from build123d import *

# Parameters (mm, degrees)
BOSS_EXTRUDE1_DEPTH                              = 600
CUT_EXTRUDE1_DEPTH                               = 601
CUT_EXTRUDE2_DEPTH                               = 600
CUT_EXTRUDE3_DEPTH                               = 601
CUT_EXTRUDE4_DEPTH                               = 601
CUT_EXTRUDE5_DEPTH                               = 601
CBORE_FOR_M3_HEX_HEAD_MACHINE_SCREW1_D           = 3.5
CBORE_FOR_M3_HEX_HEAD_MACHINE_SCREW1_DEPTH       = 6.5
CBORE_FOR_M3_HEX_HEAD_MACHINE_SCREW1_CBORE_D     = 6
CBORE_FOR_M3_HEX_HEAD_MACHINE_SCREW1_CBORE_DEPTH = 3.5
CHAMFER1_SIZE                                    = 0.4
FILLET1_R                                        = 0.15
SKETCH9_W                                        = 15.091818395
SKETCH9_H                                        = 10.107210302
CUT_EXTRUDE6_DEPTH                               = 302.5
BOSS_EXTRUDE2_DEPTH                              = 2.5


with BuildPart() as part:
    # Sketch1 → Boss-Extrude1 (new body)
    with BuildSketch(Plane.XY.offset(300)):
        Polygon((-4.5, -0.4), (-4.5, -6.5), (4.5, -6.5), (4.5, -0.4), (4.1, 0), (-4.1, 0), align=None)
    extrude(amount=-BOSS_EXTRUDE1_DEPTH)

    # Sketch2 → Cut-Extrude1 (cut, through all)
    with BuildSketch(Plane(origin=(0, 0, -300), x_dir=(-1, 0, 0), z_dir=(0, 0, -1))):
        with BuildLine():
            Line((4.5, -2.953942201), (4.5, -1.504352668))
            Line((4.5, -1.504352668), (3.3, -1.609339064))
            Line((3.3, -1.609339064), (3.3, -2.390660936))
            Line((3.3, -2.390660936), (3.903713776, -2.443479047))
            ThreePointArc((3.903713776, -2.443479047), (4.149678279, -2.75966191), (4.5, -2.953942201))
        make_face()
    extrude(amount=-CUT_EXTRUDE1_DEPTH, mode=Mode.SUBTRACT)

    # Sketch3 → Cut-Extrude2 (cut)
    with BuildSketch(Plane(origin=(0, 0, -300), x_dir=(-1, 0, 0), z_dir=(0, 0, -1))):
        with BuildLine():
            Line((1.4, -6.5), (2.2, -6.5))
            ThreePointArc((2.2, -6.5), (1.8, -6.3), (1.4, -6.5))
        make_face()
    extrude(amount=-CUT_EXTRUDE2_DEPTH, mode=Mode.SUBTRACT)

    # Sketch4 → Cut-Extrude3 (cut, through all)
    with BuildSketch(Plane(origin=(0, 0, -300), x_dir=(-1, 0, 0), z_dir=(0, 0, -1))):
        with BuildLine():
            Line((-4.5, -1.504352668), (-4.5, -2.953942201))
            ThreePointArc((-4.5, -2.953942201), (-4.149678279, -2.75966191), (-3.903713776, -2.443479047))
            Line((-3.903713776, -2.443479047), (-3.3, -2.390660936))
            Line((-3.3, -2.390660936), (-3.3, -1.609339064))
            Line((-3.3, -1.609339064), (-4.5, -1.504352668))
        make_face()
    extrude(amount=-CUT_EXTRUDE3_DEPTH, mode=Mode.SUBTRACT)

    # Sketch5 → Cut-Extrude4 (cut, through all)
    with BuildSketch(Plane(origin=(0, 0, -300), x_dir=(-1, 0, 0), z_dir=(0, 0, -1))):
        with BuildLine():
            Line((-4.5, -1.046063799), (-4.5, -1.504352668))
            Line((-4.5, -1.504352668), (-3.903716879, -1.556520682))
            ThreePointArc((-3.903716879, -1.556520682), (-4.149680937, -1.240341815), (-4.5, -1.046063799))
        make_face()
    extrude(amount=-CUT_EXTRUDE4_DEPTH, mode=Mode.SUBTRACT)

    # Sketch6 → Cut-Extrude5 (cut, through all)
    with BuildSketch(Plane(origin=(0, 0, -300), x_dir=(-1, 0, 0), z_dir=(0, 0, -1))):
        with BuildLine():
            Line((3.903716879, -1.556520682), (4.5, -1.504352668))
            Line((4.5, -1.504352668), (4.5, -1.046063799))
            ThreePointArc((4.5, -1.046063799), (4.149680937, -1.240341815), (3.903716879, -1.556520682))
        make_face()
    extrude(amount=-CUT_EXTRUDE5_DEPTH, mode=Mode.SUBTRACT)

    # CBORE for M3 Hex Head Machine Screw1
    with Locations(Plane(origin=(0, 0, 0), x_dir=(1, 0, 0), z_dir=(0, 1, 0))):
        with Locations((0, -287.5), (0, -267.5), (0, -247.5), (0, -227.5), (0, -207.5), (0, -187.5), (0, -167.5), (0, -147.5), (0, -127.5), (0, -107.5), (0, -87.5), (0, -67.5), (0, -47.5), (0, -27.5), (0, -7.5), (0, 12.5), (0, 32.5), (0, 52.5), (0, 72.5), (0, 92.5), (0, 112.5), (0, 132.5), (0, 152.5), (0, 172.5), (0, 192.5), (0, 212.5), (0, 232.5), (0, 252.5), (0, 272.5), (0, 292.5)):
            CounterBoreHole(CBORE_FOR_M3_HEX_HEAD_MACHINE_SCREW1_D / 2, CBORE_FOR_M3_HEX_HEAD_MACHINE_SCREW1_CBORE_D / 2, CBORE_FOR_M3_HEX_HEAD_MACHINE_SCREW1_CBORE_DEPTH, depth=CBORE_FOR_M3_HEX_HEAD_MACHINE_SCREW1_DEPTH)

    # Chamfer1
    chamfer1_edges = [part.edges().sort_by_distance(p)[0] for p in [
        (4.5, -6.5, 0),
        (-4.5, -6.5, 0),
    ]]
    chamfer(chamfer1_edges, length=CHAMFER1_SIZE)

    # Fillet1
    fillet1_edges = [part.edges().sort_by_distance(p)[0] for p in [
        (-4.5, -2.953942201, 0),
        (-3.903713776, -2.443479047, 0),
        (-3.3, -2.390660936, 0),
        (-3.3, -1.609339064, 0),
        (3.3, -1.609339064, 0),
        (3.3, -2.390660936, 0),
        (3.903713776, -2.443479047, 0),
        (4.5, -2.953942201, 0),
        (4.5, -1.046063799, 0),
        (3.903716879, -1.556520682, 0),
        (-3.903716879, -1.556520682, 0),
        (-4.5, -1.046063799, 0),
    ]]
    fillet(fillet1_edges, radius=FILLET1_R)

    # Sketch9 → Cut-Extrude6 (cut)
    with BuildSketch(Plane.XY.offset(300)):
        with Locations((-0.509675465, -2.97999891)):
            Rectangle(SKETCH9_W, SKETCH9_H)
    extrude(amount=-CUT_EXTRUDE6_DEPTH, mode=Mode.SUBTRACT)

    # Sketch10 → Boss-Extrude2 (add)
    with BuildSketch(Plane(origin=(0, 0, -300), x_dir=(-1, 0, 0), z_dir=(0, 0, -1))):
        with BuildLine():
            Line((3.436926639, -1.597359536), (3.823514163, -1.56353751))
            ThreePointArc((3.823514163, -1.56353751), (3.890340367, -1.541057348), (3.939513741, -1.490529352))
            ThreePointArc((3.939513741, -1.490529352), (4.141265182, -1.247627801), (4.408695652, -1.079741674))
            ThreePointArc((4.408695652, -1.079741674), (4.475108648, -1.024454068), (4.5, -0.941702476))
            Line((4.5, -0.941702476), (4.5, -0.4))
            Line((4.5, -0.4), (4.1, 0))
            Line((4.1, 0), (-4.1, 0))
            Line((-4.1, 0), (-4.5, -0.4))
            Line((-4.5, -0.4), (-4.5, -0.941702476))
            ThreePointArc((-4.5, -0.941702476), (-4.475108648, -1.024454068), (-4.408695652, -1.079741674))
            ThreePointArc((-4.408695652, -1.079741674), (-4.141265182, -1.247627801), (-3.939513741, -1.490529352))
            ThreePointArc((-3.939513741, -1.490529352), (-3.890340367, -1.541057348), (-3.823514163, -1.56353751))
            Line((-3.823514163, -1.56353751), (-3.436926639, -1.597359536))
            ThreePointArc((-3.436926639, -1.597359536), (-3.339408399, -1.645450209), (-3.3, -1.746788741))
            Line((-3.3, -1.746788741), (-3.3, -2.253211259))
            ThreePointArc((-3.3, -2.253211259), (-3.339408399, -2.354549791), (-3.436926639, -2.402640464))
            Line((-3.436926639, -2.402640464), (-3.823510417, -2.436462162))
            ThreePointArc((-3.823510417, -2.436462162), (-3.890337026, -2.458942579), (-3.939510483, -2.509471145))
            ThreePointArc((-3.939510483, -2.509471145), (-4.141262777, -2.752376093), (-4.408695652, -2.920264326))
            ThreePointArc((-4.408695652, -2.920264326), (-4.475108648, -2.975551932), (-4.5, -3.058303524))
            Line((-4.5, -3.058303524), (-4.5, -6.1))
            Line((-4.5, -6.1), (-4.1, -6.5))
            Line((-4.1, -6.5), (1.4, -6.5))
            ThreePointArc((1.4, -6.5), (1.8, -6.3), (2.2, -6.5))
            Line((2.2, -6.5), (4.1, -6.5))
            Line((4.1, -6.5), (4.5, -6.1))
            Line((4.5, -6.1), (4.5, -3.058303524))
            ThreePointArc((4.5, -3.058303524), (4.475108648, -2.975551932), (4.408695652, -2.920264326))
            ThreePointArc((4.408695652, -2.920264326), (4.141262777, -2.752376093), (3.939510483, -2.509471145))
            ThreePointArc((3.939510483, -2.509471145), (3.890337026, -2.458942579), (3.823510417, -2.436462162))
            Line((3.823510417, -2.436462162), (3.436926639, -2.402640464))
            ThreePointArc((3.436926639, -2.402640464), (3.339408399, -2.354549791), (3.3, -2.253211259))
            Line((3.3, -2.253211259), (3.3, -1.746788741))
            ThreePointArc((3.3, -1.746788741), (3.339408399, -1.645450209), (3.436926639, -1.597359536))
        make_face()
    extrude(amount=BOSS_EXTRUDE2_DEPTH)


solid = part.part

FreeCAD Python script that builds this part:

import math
import FreeCAD as App
import Part
import Sketcher
from FreeCAD import Vector
Q = App.Units.Quantity


def edges_at(feature, points):
    """Names of the edges that pass closest to the given points."""
    edges = feature.Shape.Edges
    near = lambda p: min(range(len(edges)), key=lambda i: edges[i].distToShape(Part.Vertex(*p))[0])
    return sorted({f"Edge{near(p) + 1}" for p in points})

doc = App.newDocument("Part")
body = doc.addObject("PartDesign::Body", "Body")

# Sketch on XY plane
sketch1 = body.newObject("Sketcher::SketchObject", "Sketch")
sketch1.AttachmentSupport = (doc.getObject("XY_Plane"), [""])
sketch1.MapMode = "FlatFace"
sketch1.AttachmentOffset = App.Placement(Vector(0, 0, 300), App.Rotation())
sketch1.addGeometry([
    Part.LineSegment(Vector(-4.5, -0.4, 0), Vector(-4.5, -6.5, 0)),  # 0
    Part.LineSegment(Vector(-4.5, -6.5, 0), Vector(4.5, -6.5, 0)),  # 1
    Part.LineSegment(Vector(4.5, -6.5, 0), Vector(4.5, -0.4, 0)),  # 2
    Part.LineSegment(Vector(4.5, -0.4, 0), Vector(4.1, 0, 0)),  # 3
    Part.LineSegment(Vector(4.1, 0, 0), Vector(-4.1, 0, 0)),  # 4
    Part.LineSegment(Vector(-4.1, 0, 0), Vector(-4.5, -0.4, 0)),  # 5
], False)
sketch1.addConstraint([
    Sketcher.Constraint("Coincident", 0, 2, 1, 1),
    Sketcher.Constraint("Coincident", 1, 2, 2, 1),
    Sketcher.Constraint("Coincident", 2, 2, 3, 1),
    Sketcher.Constraint("Coincident", 3, 2, 4, 1),
    Sketcher.Constraint("Coincident", 4, 2, 5, 1),
    Sketcher.Constraint("Coincident", 5, 2, 0, 1),
    Sketcher.Constraint("Vertical", 0),
    Sketcher.Constraint("Horizontal", 1),
    Sketcher.Constraint("Vertical", 2),
    Sketcher.Constraint("Horizontal", 4),
    Sketcher.Constraint("Symmetric", 3, 2, 4, 2, -1, 1),
    Sketcher.Constraint("Symmetric", 2, 2, 5, 2, -2),
    Sketcher.Constraint("Perpendicular", 3, 5),
    Sketcher.Constraint("DistanceX", 1, 1, 1, 2, Q("9 mm")),
    Sketcher.Constraint("DistanceX", 4, 2, 4, 1, Q("8.2 mm")),
    Sketcher.Constraint("DistanceY", 0, 2, 0, 1, Q("6.1 mm")),
])
pad1 = body.newObject("PartDesign::Pad", "Pad")
pad1.Profile = sketch1
pad1.Length = 600
pad1.Reversed = True

# Sketch on XY plane
sketch2 = body.newObject("Sketcher::SketchObject", "Sketch001")
sketch2.AttachmentSupport = (doc.getObject("XY_Plane"), [""])
sketch2.MapMode = "FlatFace"
sketch2.AttachmentOffset = App.Placement(Vector(0, 0, -300), App.Rotation())
sketch2.addGeometry([
    Part.LineSegment(Vector(-4.5, -3, 0), Vector(-4.5, -1.5, 0)),  # 0
    Part.LineSegment(Vector(-4.5, -1.5, 0), Vector(-3.3, -1.6, 0)),  # 1
    Part.LineSegment(Vector(-3.3, -1.6, 0), Vector(-3.3, -2.4, 0)),  # 2
    Part.LineSegment(Vector(-3.3, -2.4, 0), Vector(-3.9, -2.4, 0)),  # 3
    Part.ArcOfCircle(Part.Circle(Vector(-4.8, -2, 0), Vector(0, 0, 1), 1), math.radians(-73), math.radians(-26)),  # 4
], False)
sketch2.addConstraint([
    Sketcher.Constraint("Coincident", 0, 2, 1, 1),
    Sketcher.Constraint("Coincident", 1, 2, 2, 1),
    Sketcher.Constraint("Coincident", 2, 2, 3, 1),
    Sketcher.Constraint("Coincident", 3, 2, 4, 2),
    Sketcher.Constraint("Coincident", 4, 1, 0, 1),
    Sketcher.Constraint("Vertical", 0),
    Sketcher.Constraint("Vertical", 2),
    Sketcher.Constraint("Radius", 4, Q("1 mm")),
    Sketcher.Constraint("Angle", 1, Q("-5 deg")),
    Sketcher.Constraint("Angle", 3, Q("-175 deg")),
    Sketcher.Constraint("DistanceX", 4, 3, -1, 1, Q("4.8 mm")),
    Sketcher.Constraint("DistanceX", 0, 2, -1, 1, Q("4.5 mm")),
    Sketcher.Constraint("DistanceX", 1, 2, -1, 1, Q("3.3 mm")),
    Sketcher.Constraint("DistanceY", 0, 1, 0, 2, Q("1.44959 mm")),
    Sketcher.Constraint("DistanceY", 2, 2, 2, 1, Q("0.781322 mm")),
    Sketcher.Constraint("DistanceY", 1, 2, -1, 1, Q("1.609339 mm")),
])
pocket1 = body.newObject("PartDesign::Pocket", "Pocket")
pocket1.Profile = sketch2
pocket1.Type = "ThroughAll"
pocket1.Reversed = True

# Sketch on XY plane
sketch3 = body.newObject("Sketcher::SketchObject", "Sketch002")
sketch3.AttachmentSupport = (doc.getObject("XY_Plane"), [""])
sketch3.MapMode = "FlatFace"
sketch3.AttachmentOffset = App.Placement(Vector(0, 0, -300), App.Rotation())
sketch3.addGeometry([
    Part.LineSegment(Vector(-1.4, -6.5, 0), Vector(-2.2, -6.5, 0)),
    Part.ArcOfCircle(Part.Circle(Vector(-1.8, -6.8, 0), Vector(0, 0, 1), 0.5), math.radians(37), math.radians(143)),
], False)
sketch3.addConstraint([
    Sketcher.Constraint("Coincident", 0, 1, 1, 1),
    Sketcher.Constraint("Coincident", 1, 2, 0, 2),
    Sketcher.Constraint("Horizontal", 0),
    Sketcher.Constraint("Radius", 1, Q("0.5 mm")),
    Sketcher.Constraint("DistanceX", 0, 2, 0, 1, Q("0.8 mm")),
    Sketcher.Constraint("DistanceX", 1, 3, -1, 1, Q("1.8 mm")),
    Sketcher.Constraint("DistanceY", 1, 3, -1, 1, Q("6.8 mm")),
])
pocket2 = body.newObject("PartDesign::Pocket", "Pocket001")
pocket2.Profile = sketch3
pocket2.Length = 600
pocket2.Reversed = True

# Sketch on XY plane
sketch4 = body.newObject("Sketcher::SketchObject", "Sketch003")
sketch4.AttachmentSupport = (doc.getObject("XY_Plane"), [""])
sketch4.MapMode = "FlatFace"
sketch4.AttachmentOffset = App.Placement(Vector(0, 0, -300), App.Rotation())
sketch4.addGeometry([
    Part.LineSegment(Vector(4.5, -1.5, 0), Vector(4.5, -3, 0)),  # 0
    Part.ArcOfCircle(Part.Circle(Vector(4.8, -2, 0), Vector(0, 0, 1), 1), math.radians(-154), math.radians(-107)),  # 1
    Part.LineSegment(Vector(3.9, -2.4, 0), Vector(3.3, -2.4, 0)),  # 2
    Part.LineSegment(Vector(3.3, -2.4, 0), Vector(3.3, -1.6, 0)),  # 3
    Part.LineSegment(Vector(3.3, -1.6, 0), Vector(4.5, -1.5, 0)),  # 4
], False)
sketch4.addConstraint([
    Sketcher.Constraint("Coincident", 0, 2, 1, 2),
    Sketcher.Constraint("Coincident", 1, 1, 2, 1),
    Sketcher.Constraint("Coincident", 2, 2, 3, 1),
    Sketcher.Constraint("Coincident", 3, 2, 4, 1),
    Sketcher.Constraint("Coincident", 4, 2, 0, 1),
    Sketcher.Constraint("Vertical", 0),
    Sketcher.Constraint("Vertical", 3),
    Sketcher.Constraint("Radius", 1, Q("1 mm")),
    Sketcher.Constraint("Angle", 2, Q("175 deg")),
    Sketcher.Constraint("Angle", 4, Q("5 deg")),
    Sketcher.Constraint("DistanceX", -1, 1, 1, 3, Q("4.8 mm")),
    Sketcher.Constraint("DistanceX", -1, 1, 0, 2, Q("4.5 mm")),
    Sketcher.Constraint("DistanceX", -1, 1, 2, 2, Q("3.3 mm")),
    Sketcher.Constraint("DistanceY", 0, 2, 0, 1, Q("1.44959 mm")),
    Sketcher.Constraint("DistanceY", 3, 1, 3, 2, Q("0.781322 mm")),
    Sketcher.Constraint("DistanceY", 1, 1, -1, 1, Q("2.443479 mm")),
])
pocket3 = body.newObject("PartDesign::Pocket", "Pocket002")
pocket3.Profile = sketch4
pocket3.Type = "ThroughAll"
pocket3.Reversed = True

# Sketch on XY plane
sketch5 = body.newObject("Sketcher::SketchObject", "Sketch004")
sketch5.AttachmentSupport = (doc.getObject("XY_Plane"), [""])
sketch5.MapMode = "FlatFace"
sketch5.AttachmentOffset = App.Placement(Vector(0, 0, -300), App.Rotation())
sketch5.addGeometry([
    Part.LineSegment(Vector(4.5, -1.05, 0), Vector(4.5, -1.5, 0)),
    Part.LineSegment(Vector(4.5, -1.5, 0), Vector(3.9, -1.56, 0)),
    Part.ArcOfCircle(Part.Circle(Vector(4.8, -2, 0), Vector(0, 0, 1), 1), math.radians(107), math.radians(154)),
], False)
sketch5.addConstraint([
    Sketcher.Constraint("Coincident", 0, 2, 1, 1),
    Sketcher.Constraint("Coincident", 1, 2, 2, 2),
    Sketcher.Constraint("Coincident", 2, 1, 0, 1),
    Sketcher.Constraint("Vertical", 0),
    Sketcher.Constraint("Radius", 2, Q("1 mm")),
    Sketcher.Constraint("Angle", 1, Q("-175 deg")),
    Sketcher.Constraint("DistanceX", -1, 1, 2, 3, Q("4.8 mm")),
    Sketcher.Constraint("DistanceX", -1, 1, 0, 2, Q("4.5 mm")),
    Sketcher.Constraint("DistanceY", 0, 2, 0, 1, Q("0.458289 mm")),
    Sketcher.Constraint("DistanceY", 1, 2, -1, 1, Q("1.556521 mm")),
])
pocket4 = body.newObject("PartDesign::Pocket", "Pocket003")
pocket4.Profile = sketch5
pocket4.Type = "ThroughAll"
pocket4.Reversed = True

# Sketch on XY plane
sketch6 = body.newObject("Sketcher::SketchObject", "Sketch005")
sketch6.AttachmentSupport = (doc.getObject("XY_Plane"), [""])
sketch6.MapMode = "FlatFace"
sketch6.AttachmentOffset = App.Placement(Vector(0, 0, -300), App.Rotation())
sketch6.addGeometry([
    Part.LineSegment(Vector(-3.9, -1.56, 0), Vector(-4.5, -1.5, 0)),
    Part.LineSegment(Vector(-4.5, -1.5, 0), Vector(-4.5, -1.05, 0)),
    Part.ArcOfCircle(Part.Circle(Vector(-4.8, -2, 0), Vector(0, 0, 1), 1), math.radians(26), math.radians(73)),
], False)
sketch6.addConstraint([
    Sketcher.Constraint("Coincident", 0, 2, 1, 1),
    Sketcher.Constraint("Coincident", 1, 2, 2, 2),
    Sketcher.Constraint("Coincident", 2, 1, 0, 1),
    Sketcher.Constraint("Vertical", 1),
    Sketcher.Constraint("Radius", 2, Q("1 mm")),
    Sketcher.Constraint("Angle", 0, Q("175 deg")),
    Sketcher.Constraint("DistanceX", 2, 3, -1, 1, Q("4.8 mm")),
    Sketcher.Constraint("DistanceX", 0, 2, -1, 1, Q("4.5 mm")),
    Sketcher.Constraint("DistanceY", 1, 1, 1, 2, Q("0.458289 mm")),
    Sketcher.Constraint("DistanceY", 2, 1, -1, 1, Q("1.556521 mm")),
])
pocket5 = body.newObject("PartDesign::Pocket", "Pocket004")
pocket5.Profile = sketch6
pocket5.Type = "ThroughAll"
pocket5.Reversed = True

# Sketch on XZ plane
sketch7 = body.newObject("Sketcher::SketchObject", "Sketch006")
sketch7.AttachmentSupport = (doc.getObject("XZ_Plane"), [""])
sketch7.MapMode = "FlatFace"
sketch7.addGeometry([
    Part.Circle(Vector(0, 287.5, 0), Vector(0, 0, 1), 1.8),  # 0
    Part.Circle(Vector(0, 267.5, 0), Vector(0, 0, 1), 1.8),  # 1
    Part.Circle(Vector(0, 247.5, 0), Vector(0, 0, 1), 1.8),  # 2
    Part.Circle(Vector(0, 227.5, 0), Vector(0, 0, 1), 1.8),  # 3
    Part.Circle(Vector(0, 207.5, 0), Vector(0, 0, 1), 1.8),  # 4
    Part.Circle(Vector(0, 187.5, 0), Vector(0, 0, 1), 1.8),  # 5
    Part.Circle(Vector(0, 167.5, 0), Vector(0, 0, 1), 1.8),  # 6
    Part.Circle(Vector(0, 147.5, 0), Vector(0, 0, 1), 1.8),  # 7
    Part.Circle(Vector(0, 127.5, 0), Vector(0, 0, 1), 1.8),  # 8
    Part.Circle(Vector(0, 107.5, 0), Vector(0, 0, 1), 1.8),  # 9
    Part.Circle(Vector(0, 87.5, 0), Vector(0, 0, 1), 1.8),  # 10
    Part.Circle(Vector(0, 67.5, 0), Vector(0, 0, 1), 1.8),  # 11
    Part.Circle(Vector(0, 47.5, 0), Vector(0, 0, 1), 1.8),  # 12
    Part.Circle(Vector(0, 27.5, 0), Vector(0, 0, 1), 1.8),  # 13
    Part.Circle(Vector(0, 7.5, 0), Vector(0, 0, 1), 1.8),  # 14
    Part.Circle(Vector(0, -12.5, 0), Vector(0, 0, 1), 1.8),  # 15
    Part.Circle(Vector(0, -32.5, 0), Vector(0, 0, 1), 1.8),  # 16
    Part.Circle(Vector(0, -52.5, 0), Vector(0, 0, 1), 1.8),  # 17
    Part.Circle(Vector(0, -72.5, 0), Vector(0, 0, 1), 1.8),  # 18
    Part.Circle(Vector(0, -92.5, 0), Vector(0, 0, 1), 1.8),  # 19
    Part.Circle(Vector(0, -112.5, 0), Vector(0, 0, 1), 1.8),  # 20
    Part.Circle(Vector(0, -132.5, 0), Vector(0, 0, 1), 1.8),  # 21
    Part.Circle(Vector(0, -152.5, 0), Vector(0, 0, 1), 1.8),  # 22
    Part.Circle(Vector(0, -172.5, 0), Vector(0, 0, 1), 1.8),  # 23
    Part.Circle(Vector(0, -192.5, 0), Vector(0, 0, 1), 1.8),  # 24
    Part.Circle(Vector(0, -212.5, 0), Vector(0, 0, 1), 1.8),  # 25
    Part.Circle(Vector(0, -232.5, 0), Vector(0, 0, 1), 1.8),  # 26
    Part.Circle(Vector(0, -252.5, 0), Vector(0, 0, 1), 1.8),  # 27
    Part.Circle(Vector(0, -272.5, 0), Vector(0, 0, 1), 1.8),  # 28
    Part.Circle(Vector(0, -292.5, 0), Vector(0, 0, 1), 1.8),  # 29
], False)
sketch7.addConstraint([
    Sketcher.Constraint("Equal", 0, 1),
    Sketcher.Constraint("Equal", 1, 2),
    Sketcher.Constraint("Equal", 2, 3),
    Sketcher.Constraint("Equal", 3, 4),
    Sketcher.Constraint("Equal", 4, 5),
    Sketcher.Constraint("Equal", 5, 6),
    Sketcher.Constraint("Equal", 6, 7),
    Sketcher.Constraint("Equal", 7, 8),
    Sketcher.Constraint("Equal", 8, 9),
    Sketcher.Constraint("Equal", 9, 10),
    Sketcher.Constraint("Equal", 10, 11),
    Sketcher.Constraint("Equal", 11, 12),
    Sketcher.Constraint("Equal", 12, 13),
    Sketcher.Constraint("Equal", 13, 14),
    Sketcher.Constraint("Equal", 14, 15),
    Sketcher.Constraint("Equal", 15, 16),
    Sketcher.Constraint("Equal", 16, 17),
    Sketcher.Constraint("Equal", 17, 18),
    Sketcher.Constraint("Equal", 18, 19),
    Sketcher.Constraint("Equal", 19, 20),
    Sketcher.Constraint("Equal", 20, 21),
    Sketcher.Constraint("Equal", 21, 22),
    Sketcher.Constraint("Equal", 22, 23),
    Sketcher.Constraint("Equal", 23, 24),
    Sketcher.Constraint("Equal", 24, 25),
    Sketcher.Constraint("Equal", 25, 26),
    Sketcher.Constraint("Equal", 26, 27),
    Sketcher.Constraint("Equal", 27, 28),
    Sketcher.Constraint("Equal", 28, 29),
    Sketcher.Constraint("PointOnObject", 0, 3, -2),
    Sketcher.Constraint("PointOnObject", 1, 3, -2),
    Sketcher.Constraint("PointOnObject", 2, 3, -2),
    Sketcher.Constraint("PointOnObject", 3, 3, -2),
    Sketcher.Constraint("PointOnObject", 4, 3, -2),
    Sketcher.Constraint("PointOnObject", 5, 3, -2),
    Sketcher.Constraint("PointOnObject", 6, 3, -2),
    Sketcher.Constraint("PointOnObject", 7, 3, -2),
    Sketcher.Constraint("PointOnObject", 8, 3, -2),
    Sketcher.Constraint("PointOnObject", 9, 3, -2),
    Sketcher.Constraint("PointOnObject", 10, 3, -2),
    Sketcher.Constraint("PointOnObject", 11, 3, -2),
    Sketcher.Constraint("PointOnObject", 12, 3, -2),
    Sketcher.Constraint("PointOnObject", 13, 3, -2),
    Sketcher.Constraint("PointOnObject", 14, 3, -2),
    Sketcher.Constraint("PointOnObject", 15, 3, -2),
    Sketcher.Constraint("PointOnObject", 16, 3, -2),
    Sketcher.Constraint("PointOnObject", 17, 3, -2),
    Sketcher.Constraint("PointOnObject", 18, 3, -2),
    Sketcher.Constraint("PointOnObject", 19, 3, -2),
    Sketcher.Constraint("PointOnObject", 20, 3, -2),
    Sketcher.Constraint("PointOnObject", 21, 3, -2),
    Sketcher.Constraint("PointOnObject", 22, 3, -2),
    Sketcher.Constraint("PointOnObject", 23, 3, -2),
    Sketcher.Constraint("PointOnObject", 24, 3, -2),
    Sketcher.Constraint("PointOnObject", 25, 3, -2),
    Sketcher.Constraint("PointOnObject", 26, 3, -2),
    Sketcher.Constraint("PointOnObject", 27, 3, -2),
    Sketcher.Constraint("PointOnObject", 28, 3, -2),
    Sketcher.Constraint("PointOnObject", 29, 3, -2),
    Sketcher.Constraint("Diameter", 0, Q("3.5 mm")),
    Sketcher.Constraint("DistanceY", 1, 3, 0, 3, Q("20 mm")),
    Sketcher.Constraint("DistanceY", 2, 3, 1, 3, Q("20 mm")),
    Sketcher.Constraint("DistanceY", 3, 3, 2, 3, Q("20 mm")),
    Sketcher.Constraint("DistanceY", 4, 3, 3, 3, Q("20 mm")),
    Sketcher.Constraint("DistanceY", 5, 3, 4, 3, Q("20 mm")),
    Sketcher.Constraint("DistanceY", 6, 3, 5, 3, Q("20 mm")),
    Sketcher.Constraint("DistanceY", 7, 3, 6, 3, Q("20 mm")),
    Sketcher.Constraint("DistanceY", 8, 3, 7, 3, Q("20 mm")),
    Sketcher.Constraint("DistanceY", 9, 3, 8, 3, Q("20 mm")),
    Sketcher.Constraint("DistanceY", 10, 3, 9, 3, Q("20 mm")),
    Sketcher.Constraint("DistanceY", 11, 3, 10, 3, Q("20 mm")),
    Sketcher.Constraint("DistanceY", 12, 3, 11, 3, Q("20 mm")),
    Sketcher.Constraint("DistanceY", 13, 3, 12, 3, Q("20 mm")),
    Sketcher.Constraint("DistanceY", 14, 3, 13, 3, Q("20 mm")),
    Sketcher.Constraint("DistanceY", 15, 3, 14, 3, Q("20 mm")),
    Sketcher.Constraint("DistanceY", 16, 3, 15, 3, Q("20 mm")),
    Sketcher.Constraint("DistanceY", 17, 3, 16, 3, Q("20 mm")),
    Sketcher.Constraint("DistanceY", 18, 3, 17, 3, Q("20 mm")),
    Sketcher.Constraint("DistanceY", 19, 3, 18, 3, Q("20 mm")),
    Sketcher.Constraint("DistanceY", 20, 3, 19, 3, Q("20 mm")),
    Sketcher.Constraint("DistanceY", 21, 3, 20, 3, Q("20 mm")),
    Sketcher.Constraint("DistanceY", 22, 3, 21, 3, Q("20 mm")),
    Sketcher.Constraint("DistanceY", 23, 3, 22, 3, Q("20 mm")),
    Sketcher.Constraint("DistanceY", 24, 3, 23, 3, Q("20 mm")),
    Sketcher.Constraint("DistanceY", 25, 3, 24, 3, Q("20 mm")),
    Sketcher.Constraint("DistanceY", 26, 3, 25, 3, Q("20 mm")),
    Sketcher.Constraint("DistanceY", 27, 3, 26, 3, Q("20 mm")),
    Sketcher.Constraint("DistanceY", 28, 3, 27, 3, Q("20 mm")),
    Sketcher.Constraint("DistanceY", 29, 3, 28, 3, Q("20 mm")),
    Sketcher.Constraint("DistanceY", -1, 1, 0, 3, Q("287.5 mm")),
])
doc.recompute()
hole = body.newObject("PartDesign::Hole", "Hole")
hole.Profile = sketch7
hole.ThreadType = "None"
hole.Diameter = 3.5
hole.DepthType = "Dimension"
hole.Depth = 6.5
hole.DrillPoint = "Flat"
hole.HoleCutType = "Counterbore"
hole.HoleCutDiameter = 6
hole.HoleCutDepth = 3.5
hole.Reversed = True
doc.recompute()

chamfer = body.newObject("PartDesign::Chamfer", "Chamfer")
chamfer.Base = (hole, edges_at(hole, [(4.5, -6.5, 0), (-4.5, -6.5, 0)]))
chamfer.Size = 0.4
doc.recompute()

fillet = body.newObject("PartDesign::Fillet", "Fillet")
fillet.Base = (chamfer, edges_at(chamfer, [
    (-4.5, -2.954, 0),
    (-3.904, -2.443, 0),
    (-3.3, -2.391, 0),
    (-3.3, -1.609, 0),
    (3.3, -1.609, 0),
    (3.3, -2.391, 0),
    (3.904, -2.443, 0),
    (4.5, -2.954, 0),
    (4.5, -1.046, 0),
    (3.904, -1.557, 0),
    (-3.904, -1.557, 0),
    (-4.5, -1.046, 0),
]))
fillet.Radius = 0.15

# Sketch on XY plane
sketch8 = body.newObject("Sketcher::SketchObject", "Sketch007")
sketch8.AttachmentSupport = (doc.getObject("XY_Plane"), [""])
sketch8.MapMode = "FlatFace"
sketch8.AttachmentOffset = App.Placement(Vector(0, 0, 300), App.Rotation())
sketch8.addGeometry([
    Part.LineSegment(Vector(-8, 2, 0), Vector(-8, -8, 0)),
    Part.LineSegment(Vector(-8, -8, 0), Vector(7, -8, 0)),
    Part.LineSegment(Vector(7, -8, 0), Vector(7, 2, 0)),
    Part.LineSegment(Vector(7, 2, 0), Vector(-8, 2, 0)),
], False)
sketch8.addConstraint([
    Sketcher.Constraint("Coincident", 0, 2, 1, 1),
    Sketcher.Constraint("Coincident", 1, 2, 2, 1),
    Sketcher.Constraint("Coincident", 2, 2, 3, 1),
    Sketcher.Constraint("Coincident", 3, 2, 0, 1),
    Sketcher.Constraint("Vertical", 0),
    Sketcher.Constraint("Horizontal", 1),
    Sketcher.Constraint("Vertical", 2),
    Sketcher.Constraint("Horizontal", 3),
    Sketcher.Constraint("DistanceX", 1, 1, 1, 2, Q("15.091818 mm")),
    Sketcher.Constraint("DistanceY", 0, 2, 0, 1, Q("10.10721 mm")),
    Sketcher.Constraint("DistanceX", 0, 2, -1, 1, Q("8.055585 mm")),
    Sketcher.Constraint("DistanceY", 0, 2, -1, 1, Q("8.033604 mm")),
])
pocket6 = body.newObject("PartDesign::Pocket", "Pocket005")
pocket6.Profile = sketch8
pocket6.Length = 302.5

# Sketch on XY plane
sketch9 = body.newObject("Sketcher::SketchObject", "Sketch008")
sketch9.AttachmentSupport = (doc.getObject("XY_Plane"), [""])
sketch9.MapMode = "FlatFace"
sketch9.AttachmentOffset = App.Placement(Vector(0, 0, -300), App.Rotation())
sketch9.addGeometry([
    Part.LineSegment(Vector(-3.44, -1.6, 0), Vector(-3.82, -1.56, 0)),  # 0
    Part.ArcOfCircle(Part.Circle(Vector(-3.81, -1.41, 0), Vector(0, 0, 1), 0.15), math.radians(-149), math.radians(-95)),  # 1
    Part.ArcOfCircle(Part.Circle(Vector(-4.8, -2, 0), Vector(0, 0, 1), 1), math.radians(31), math.radians(67)),  # 2
    Part.ArcOfCircle(Part.Circle(Vector(-4.35, -0.94, 0), Vector(0, 0, 1), 0.15), math.radians(-180), math.radians(-113)),  # 3
    Part.LineSegment(Vector(-4.5, -0.94, 0), Vector(-4.5, -0.4, 0)),  # 4
    Part.LineSegment(Vector(-4.5, -0.4, 0), Vector(-4.1, 0, 0)),  # 5
    Part.LineSegment(Vector(-4.1, 0, 0), Vector(4.1, 0, 0)),  # 6
    Part.LineSegment(Vector(4.1, 0, 0), Vector(4.5, -0.4, 0)),  # 7
    Part.LineSegment(Vector(4.5, -0.4, 0), Vector(4.5, -0.94, 0)),  # 8
    Part.ArcOfCircle(Part.Circle(Vector(4.35, -0.94, 0), Vector(0, 0, 1), 0.15), math.radians(-67), math.radians(0)),  # 9
    Part.ArcOfCircle(Part.Circle(Vector(4.8, -2, 0), Vector(0, 0, 1), 1), math.radians(113), math.radians(149)),  # 10
    Part.ArcOfCircle(Part.Circle(Vector(3.81, -1.41, 0), Vector(0, 0, 1), 0.15), math.radians(-85), math.radians(-31)),  # 11
    Part.LineSegment(Vector(3.82, -1.56, 0), Vector(3.44, -1.6, 0)),  # 12
    Part.ArcOfCircle(Part.Circle(Vector(3.45, -1.75, 0), Vector(0, 0, 1), 0.15), math.radians(95), math.radians(180)),  # 13
    Part.LineSegment(Vector(3.3, -1.75, 0), Vector(3.3, -2.25, 0)),  # 14
    Part.ArcOfCircle(Part.Circle(Vector(3.45, -2.25, 0), Vector(0, 0, 1), 0.15), math.radians(180), math.radians(265)),  # 15
    Part.LineSegment(Vector(3.44, -2.4, 0), Vector(3.82, -2.44, 0)),  # 16
    Part.ArcOfCircle(Part.Circle(Vector(3.81, -2.59, 0), Vector(0, 0, 1), 0.15), math.radians(31), math.radians(85)),  # 17
    Part.ArcOfCircle(Part.Circle(Vector(4.8, -2, 0), Vector(0, 0, 1), 1), math.radians(-149), math.radians(-113)),  # 18
    Part.ArcOfCircle(Part.Circle(Vector(4.35, -3.06, 0), Vector(0, 0, 1), 0.15), math.radians(0), math.radians(67)),  # 19
    Part.LineSegment(Vector(4.5, -3.06, 0), Vector(4.5, -6.1, 0)),  # 20
    Part.LineSegment(Vector(4.5, -6.1, 0), Vector(4.1, -6.5, 0)),  # 21
    Part.LineSegment(Vector(4.1, -6.5, 0), Vector(-1.4, -6.5, 0)),  # 22
    Part.ArcOfCircle(Part.Circle(Vector(-1.8, -6.8, 0), Vector(0, 0, 1), 0.5), math.radians(37), math.radians(143)),  # 23
    Part.LineSegment(Vector(-2.2, -6.5, 0), Vector(-4.1, -6.5, 0)),  # 24
    Part.LineSegment(Vector(-4.1, -6.5, 0), Vector(-4.5, -6.1, 0)),  # 25
    Part.LineSegment(Vector(-4.5, -6.1, 0), Vector(-4.5, -3.06, 0)),  # 26
    Part.ArcOfCircle(Part.Circle(Vector(-4.35, -3.06, 0), Vector(0, 0, 1), 0.15), math.radians(113), math.radians(180)),  # 27
    Part.ArcOfCircle(Part.Circle(Vector(-4.8, -2, 0), Vector(0, 0, 1), 1), math.radians(-67), math.radians(-31)),  # 28
    Part.ArcOfCircle(Part.Circle(Vector(-3.81, -2.59, 0), Vector(0, 0, 1), 0.15), math.radians(95), math.radians(149)),  # 29
    Part.LineSegment(Vector(-3.82, -2.44, 0), Vector(-3.44, -2.4, 0)),  # 30
    Part.ArcOfCircle(Part.Circle(Vector(-3.45, -2.25, 0), Vector(0, 0, 1), 0.15), math.radians(-85), math.radians(0)),  # 31
    Part.LineSegment(Vector(-3.3, -2.25, 0), Vector(-3.3, -1.75, 0)),  # 32
    Part.ArcOfCircle(Part.Circle(Vector(-3.45, -1.75, 0), Vector(0, 0, 1), 0.15), math.radians(0), math.radians(85)),  # 33
], False)
sketch9.addConstraint([
    Sketcher.Constraint("Tangent", 0, 2, 1, 2),
    Sketcher.Constraint("Tangent", 1, 1, 2, 1),
    Sketcher.Constraint("Tangent", 2, 2, 3, 2),
    Sketcher.Constraint("Tangent", 3, 1, 4, 1),
    Sketcher.Constraint("Coincident", 4, 2, 5, 1),
    Sketcher.Constraint("Coincident", 5, 2, 6, 1),
    Sketcher.Constraint("Coincident", 6, 2, 7, 1),
    Sketcher.Constraint("Coincident", 7, 2, 8, 1),
    Sketcher.Constraint("Tangent", 8, 2, 9, 2),
    Sketcher.Constraint("Tangent", 9, 1, 10, 1),
    Sketcher.Constraint("Tangent", 10, 2, 11, 2),
    Sketcher.Constraint("Tangent", 11, 1, 12, 1),
    Sketcher.Constraint("Tangent", 12, 2, 13, 1),
    Sketcher.Constraint("Tangent", 13, 2, 14, 1),
    Sketcher.Constraint("Tangent", 14, 2, 15, 1),
    Sketcher.Constraint("Tangent", 15, 2, 16, 1),
    Sketcher.Constraint("Tangent", 16, 2, 17, 2),
    Sketcher.Constraint("Tangent", 17, 1, 18, 1),
    Sketcher.Constraint("Tangent", 18, 2, 19, 2),
    Sketcher.Constraint("Tangent", 19, 1, 20, 1),
    Sketcher.Constraint("Coincident", 20, 2, 21, 1),
    Sketcher.Constraint("Coincident", 21, 2, 22, 1),
    Sketcher.Constraint("Coincident", 22, 2, 23, 1),
    Sketcher.Constraint("Coincident", 23, 2, 24, 1),
    Sketcher.Constraint("Coincident", 24, 2, 25, 1),
    Sketcher.Constraint("Coincident", 25, 2, 26, 1),
    Sketcher.Constraint("Tangent", 26, 2, 27, 2),
    Sketcher.Constraint("Tangent", 27, 1, 28, 1),
    Sketcher.Constraint("Tangent", 28, 2, 29, 2),
    Sketcher.Constraint("Tangent", 29, 1, 30, 1),
    Sketcher.Constraint("Tangent", 30, 2, 31, 1),
    Sketcher.Constraint("Tangent", 31, 2, 32, 1),
    Sketcher.Constraint("Tangent", 32, 2, 33, 1),
    Sketcher.Constraint("Tangent", 33, 2, 0, 1),
    Sketcher.Constraint("Vertical", 4),
    Sketcher.Constraint("Horizontal", 6),
    Sketcher.Constraint("Vertical", 8),
    Sketcher.Constraint("Vertical", 14),
    Sketcher.Constraint("Vertical", 20),
    Sketcher.Constraint("Horizontal", 22),
    Sketcher.Constraint("Horizontal", 24),
    Sketcher.Constraint("Vertical", 26),
    Sketcher.Constraint("Vertical", 32),
    Sketcher.Constraint("Coincident", 18, 3, 10, 3),
    Sketcher.Constraint("Coincident", 28, 3, 2, 3),
    Sketcher.Constraint("Equal", 1, 3),
    Sketcher.Constraint("Equal", 3, 9),
    Sketcher.Constraint("Equal", 2, 10),
    Sketcher.Constraint("Equal", 9, 11),
    Sketcher.Constraint("Equal", 11, 13),
    Sketcher.Constraint("Equal", 13, 15),
    Sketcher.Constraint("Equal", 15, 17),
    Sketcher.Constraint("Equal", 10, 18),
    Sketcher.Constraint("Equal", 17, 19),
    Sketcher.Constraint("Equal", 19, 27),
    Sketcher.Constraint("Equal", 18, 28),
    Sketcher.Constraint("Equal", 27, 29),
    Sketcher.Constraint("Equal", 29, 31),
    Sketcher.Constraint("Equal", 31, 33),
    Sketcher.Constraint("Symmetric", 5, 2, 6, 2, -1, 1),
    Sketcher.Constraint("Symmetric", 3, 3, 9, 3, -2),
    Sketcher.Constraint("Symmetric", 1, 3, 11, 3, -2),
    Sketcher.Constraint("Symmetric", 15, 3, 31, 3, -2),
    Sketcher.Constraint("Symmetric", 21, 2, 24, 2, -2),
    Sketcher.Constraint("Symmetric", 20, 2, 25, 2, -2),
    Sketcher.Constraint("Perpendicular", 5, 7),
    Sketcher.Constraint("Parallel", 0, 16),
    Sketcher.Constraint("Perpendicular", 7, 21),
    Sketcher.Constraint("Perpendicular", 21, 25),
    Sketcher.Constraint("Parallel", 12, 30),
    Sketcher.Constraint("Horizontal", 17, 3, 29, 3),
    Sketcher.Constraint("Vertical", 9, 3, 19, 3),
    Sketcher.Constraint("Vertical", 6, 2, 21, 2),
    Sketcher.Constraint("Radius", 2, Q("1 mm")),
    Sketcher.Constraint("Radius", 23, Q("0.5 mm")),
    Sketcher.Constraint("Angle", 0, Q("175 deg")),
    Sketcher.Constraint("Radius", 1, Q("0.15 mm")),
    Sketcher.Constraint("DistanceX", 6, 1, 6, 2, Q("8.2 mm")),
    Sketcher.Constraint("DistanceX", 22, 2, 22, 1, Q("5.5 mm")),
    Sketcher.Constraint("DistanceX", 24, 2, 24, 1, Q("1.9 mm")),
    Sketcher.Constraint("DistanceX", 2, 3, 23, 3, Q("3 mm")),
    Sketcher.Constraint("DistanceY", 23, 3, -1, 1, Q("6.8 mm")),
    Sketcher.Constraint("DistanceX", 3, 1, -1, 1, Q("4.5 mm")),
    Sketcher.Constraint("DistanceX", -1, 1, 13, 2, Q("3.3 mm")),
    Sketcher.Constraint("DistanceX", 1, 1, 0, 2, Q("0.116 mm")),
    Sketcher.Constraint("DistanceX", 16, 2, 17, 1, Q("0.116 mm")),
    Sketcher.Constraint("DistanceY", 4, 1, 4, 2, Q("0.541702 mm")),
])
pad2 = body.newObject("PartDesign::Pad", "Pad001")
pad2.Profile = sketch9
pad2.Length = 2.5
pad2.Reversed = True

doc.recompute()
